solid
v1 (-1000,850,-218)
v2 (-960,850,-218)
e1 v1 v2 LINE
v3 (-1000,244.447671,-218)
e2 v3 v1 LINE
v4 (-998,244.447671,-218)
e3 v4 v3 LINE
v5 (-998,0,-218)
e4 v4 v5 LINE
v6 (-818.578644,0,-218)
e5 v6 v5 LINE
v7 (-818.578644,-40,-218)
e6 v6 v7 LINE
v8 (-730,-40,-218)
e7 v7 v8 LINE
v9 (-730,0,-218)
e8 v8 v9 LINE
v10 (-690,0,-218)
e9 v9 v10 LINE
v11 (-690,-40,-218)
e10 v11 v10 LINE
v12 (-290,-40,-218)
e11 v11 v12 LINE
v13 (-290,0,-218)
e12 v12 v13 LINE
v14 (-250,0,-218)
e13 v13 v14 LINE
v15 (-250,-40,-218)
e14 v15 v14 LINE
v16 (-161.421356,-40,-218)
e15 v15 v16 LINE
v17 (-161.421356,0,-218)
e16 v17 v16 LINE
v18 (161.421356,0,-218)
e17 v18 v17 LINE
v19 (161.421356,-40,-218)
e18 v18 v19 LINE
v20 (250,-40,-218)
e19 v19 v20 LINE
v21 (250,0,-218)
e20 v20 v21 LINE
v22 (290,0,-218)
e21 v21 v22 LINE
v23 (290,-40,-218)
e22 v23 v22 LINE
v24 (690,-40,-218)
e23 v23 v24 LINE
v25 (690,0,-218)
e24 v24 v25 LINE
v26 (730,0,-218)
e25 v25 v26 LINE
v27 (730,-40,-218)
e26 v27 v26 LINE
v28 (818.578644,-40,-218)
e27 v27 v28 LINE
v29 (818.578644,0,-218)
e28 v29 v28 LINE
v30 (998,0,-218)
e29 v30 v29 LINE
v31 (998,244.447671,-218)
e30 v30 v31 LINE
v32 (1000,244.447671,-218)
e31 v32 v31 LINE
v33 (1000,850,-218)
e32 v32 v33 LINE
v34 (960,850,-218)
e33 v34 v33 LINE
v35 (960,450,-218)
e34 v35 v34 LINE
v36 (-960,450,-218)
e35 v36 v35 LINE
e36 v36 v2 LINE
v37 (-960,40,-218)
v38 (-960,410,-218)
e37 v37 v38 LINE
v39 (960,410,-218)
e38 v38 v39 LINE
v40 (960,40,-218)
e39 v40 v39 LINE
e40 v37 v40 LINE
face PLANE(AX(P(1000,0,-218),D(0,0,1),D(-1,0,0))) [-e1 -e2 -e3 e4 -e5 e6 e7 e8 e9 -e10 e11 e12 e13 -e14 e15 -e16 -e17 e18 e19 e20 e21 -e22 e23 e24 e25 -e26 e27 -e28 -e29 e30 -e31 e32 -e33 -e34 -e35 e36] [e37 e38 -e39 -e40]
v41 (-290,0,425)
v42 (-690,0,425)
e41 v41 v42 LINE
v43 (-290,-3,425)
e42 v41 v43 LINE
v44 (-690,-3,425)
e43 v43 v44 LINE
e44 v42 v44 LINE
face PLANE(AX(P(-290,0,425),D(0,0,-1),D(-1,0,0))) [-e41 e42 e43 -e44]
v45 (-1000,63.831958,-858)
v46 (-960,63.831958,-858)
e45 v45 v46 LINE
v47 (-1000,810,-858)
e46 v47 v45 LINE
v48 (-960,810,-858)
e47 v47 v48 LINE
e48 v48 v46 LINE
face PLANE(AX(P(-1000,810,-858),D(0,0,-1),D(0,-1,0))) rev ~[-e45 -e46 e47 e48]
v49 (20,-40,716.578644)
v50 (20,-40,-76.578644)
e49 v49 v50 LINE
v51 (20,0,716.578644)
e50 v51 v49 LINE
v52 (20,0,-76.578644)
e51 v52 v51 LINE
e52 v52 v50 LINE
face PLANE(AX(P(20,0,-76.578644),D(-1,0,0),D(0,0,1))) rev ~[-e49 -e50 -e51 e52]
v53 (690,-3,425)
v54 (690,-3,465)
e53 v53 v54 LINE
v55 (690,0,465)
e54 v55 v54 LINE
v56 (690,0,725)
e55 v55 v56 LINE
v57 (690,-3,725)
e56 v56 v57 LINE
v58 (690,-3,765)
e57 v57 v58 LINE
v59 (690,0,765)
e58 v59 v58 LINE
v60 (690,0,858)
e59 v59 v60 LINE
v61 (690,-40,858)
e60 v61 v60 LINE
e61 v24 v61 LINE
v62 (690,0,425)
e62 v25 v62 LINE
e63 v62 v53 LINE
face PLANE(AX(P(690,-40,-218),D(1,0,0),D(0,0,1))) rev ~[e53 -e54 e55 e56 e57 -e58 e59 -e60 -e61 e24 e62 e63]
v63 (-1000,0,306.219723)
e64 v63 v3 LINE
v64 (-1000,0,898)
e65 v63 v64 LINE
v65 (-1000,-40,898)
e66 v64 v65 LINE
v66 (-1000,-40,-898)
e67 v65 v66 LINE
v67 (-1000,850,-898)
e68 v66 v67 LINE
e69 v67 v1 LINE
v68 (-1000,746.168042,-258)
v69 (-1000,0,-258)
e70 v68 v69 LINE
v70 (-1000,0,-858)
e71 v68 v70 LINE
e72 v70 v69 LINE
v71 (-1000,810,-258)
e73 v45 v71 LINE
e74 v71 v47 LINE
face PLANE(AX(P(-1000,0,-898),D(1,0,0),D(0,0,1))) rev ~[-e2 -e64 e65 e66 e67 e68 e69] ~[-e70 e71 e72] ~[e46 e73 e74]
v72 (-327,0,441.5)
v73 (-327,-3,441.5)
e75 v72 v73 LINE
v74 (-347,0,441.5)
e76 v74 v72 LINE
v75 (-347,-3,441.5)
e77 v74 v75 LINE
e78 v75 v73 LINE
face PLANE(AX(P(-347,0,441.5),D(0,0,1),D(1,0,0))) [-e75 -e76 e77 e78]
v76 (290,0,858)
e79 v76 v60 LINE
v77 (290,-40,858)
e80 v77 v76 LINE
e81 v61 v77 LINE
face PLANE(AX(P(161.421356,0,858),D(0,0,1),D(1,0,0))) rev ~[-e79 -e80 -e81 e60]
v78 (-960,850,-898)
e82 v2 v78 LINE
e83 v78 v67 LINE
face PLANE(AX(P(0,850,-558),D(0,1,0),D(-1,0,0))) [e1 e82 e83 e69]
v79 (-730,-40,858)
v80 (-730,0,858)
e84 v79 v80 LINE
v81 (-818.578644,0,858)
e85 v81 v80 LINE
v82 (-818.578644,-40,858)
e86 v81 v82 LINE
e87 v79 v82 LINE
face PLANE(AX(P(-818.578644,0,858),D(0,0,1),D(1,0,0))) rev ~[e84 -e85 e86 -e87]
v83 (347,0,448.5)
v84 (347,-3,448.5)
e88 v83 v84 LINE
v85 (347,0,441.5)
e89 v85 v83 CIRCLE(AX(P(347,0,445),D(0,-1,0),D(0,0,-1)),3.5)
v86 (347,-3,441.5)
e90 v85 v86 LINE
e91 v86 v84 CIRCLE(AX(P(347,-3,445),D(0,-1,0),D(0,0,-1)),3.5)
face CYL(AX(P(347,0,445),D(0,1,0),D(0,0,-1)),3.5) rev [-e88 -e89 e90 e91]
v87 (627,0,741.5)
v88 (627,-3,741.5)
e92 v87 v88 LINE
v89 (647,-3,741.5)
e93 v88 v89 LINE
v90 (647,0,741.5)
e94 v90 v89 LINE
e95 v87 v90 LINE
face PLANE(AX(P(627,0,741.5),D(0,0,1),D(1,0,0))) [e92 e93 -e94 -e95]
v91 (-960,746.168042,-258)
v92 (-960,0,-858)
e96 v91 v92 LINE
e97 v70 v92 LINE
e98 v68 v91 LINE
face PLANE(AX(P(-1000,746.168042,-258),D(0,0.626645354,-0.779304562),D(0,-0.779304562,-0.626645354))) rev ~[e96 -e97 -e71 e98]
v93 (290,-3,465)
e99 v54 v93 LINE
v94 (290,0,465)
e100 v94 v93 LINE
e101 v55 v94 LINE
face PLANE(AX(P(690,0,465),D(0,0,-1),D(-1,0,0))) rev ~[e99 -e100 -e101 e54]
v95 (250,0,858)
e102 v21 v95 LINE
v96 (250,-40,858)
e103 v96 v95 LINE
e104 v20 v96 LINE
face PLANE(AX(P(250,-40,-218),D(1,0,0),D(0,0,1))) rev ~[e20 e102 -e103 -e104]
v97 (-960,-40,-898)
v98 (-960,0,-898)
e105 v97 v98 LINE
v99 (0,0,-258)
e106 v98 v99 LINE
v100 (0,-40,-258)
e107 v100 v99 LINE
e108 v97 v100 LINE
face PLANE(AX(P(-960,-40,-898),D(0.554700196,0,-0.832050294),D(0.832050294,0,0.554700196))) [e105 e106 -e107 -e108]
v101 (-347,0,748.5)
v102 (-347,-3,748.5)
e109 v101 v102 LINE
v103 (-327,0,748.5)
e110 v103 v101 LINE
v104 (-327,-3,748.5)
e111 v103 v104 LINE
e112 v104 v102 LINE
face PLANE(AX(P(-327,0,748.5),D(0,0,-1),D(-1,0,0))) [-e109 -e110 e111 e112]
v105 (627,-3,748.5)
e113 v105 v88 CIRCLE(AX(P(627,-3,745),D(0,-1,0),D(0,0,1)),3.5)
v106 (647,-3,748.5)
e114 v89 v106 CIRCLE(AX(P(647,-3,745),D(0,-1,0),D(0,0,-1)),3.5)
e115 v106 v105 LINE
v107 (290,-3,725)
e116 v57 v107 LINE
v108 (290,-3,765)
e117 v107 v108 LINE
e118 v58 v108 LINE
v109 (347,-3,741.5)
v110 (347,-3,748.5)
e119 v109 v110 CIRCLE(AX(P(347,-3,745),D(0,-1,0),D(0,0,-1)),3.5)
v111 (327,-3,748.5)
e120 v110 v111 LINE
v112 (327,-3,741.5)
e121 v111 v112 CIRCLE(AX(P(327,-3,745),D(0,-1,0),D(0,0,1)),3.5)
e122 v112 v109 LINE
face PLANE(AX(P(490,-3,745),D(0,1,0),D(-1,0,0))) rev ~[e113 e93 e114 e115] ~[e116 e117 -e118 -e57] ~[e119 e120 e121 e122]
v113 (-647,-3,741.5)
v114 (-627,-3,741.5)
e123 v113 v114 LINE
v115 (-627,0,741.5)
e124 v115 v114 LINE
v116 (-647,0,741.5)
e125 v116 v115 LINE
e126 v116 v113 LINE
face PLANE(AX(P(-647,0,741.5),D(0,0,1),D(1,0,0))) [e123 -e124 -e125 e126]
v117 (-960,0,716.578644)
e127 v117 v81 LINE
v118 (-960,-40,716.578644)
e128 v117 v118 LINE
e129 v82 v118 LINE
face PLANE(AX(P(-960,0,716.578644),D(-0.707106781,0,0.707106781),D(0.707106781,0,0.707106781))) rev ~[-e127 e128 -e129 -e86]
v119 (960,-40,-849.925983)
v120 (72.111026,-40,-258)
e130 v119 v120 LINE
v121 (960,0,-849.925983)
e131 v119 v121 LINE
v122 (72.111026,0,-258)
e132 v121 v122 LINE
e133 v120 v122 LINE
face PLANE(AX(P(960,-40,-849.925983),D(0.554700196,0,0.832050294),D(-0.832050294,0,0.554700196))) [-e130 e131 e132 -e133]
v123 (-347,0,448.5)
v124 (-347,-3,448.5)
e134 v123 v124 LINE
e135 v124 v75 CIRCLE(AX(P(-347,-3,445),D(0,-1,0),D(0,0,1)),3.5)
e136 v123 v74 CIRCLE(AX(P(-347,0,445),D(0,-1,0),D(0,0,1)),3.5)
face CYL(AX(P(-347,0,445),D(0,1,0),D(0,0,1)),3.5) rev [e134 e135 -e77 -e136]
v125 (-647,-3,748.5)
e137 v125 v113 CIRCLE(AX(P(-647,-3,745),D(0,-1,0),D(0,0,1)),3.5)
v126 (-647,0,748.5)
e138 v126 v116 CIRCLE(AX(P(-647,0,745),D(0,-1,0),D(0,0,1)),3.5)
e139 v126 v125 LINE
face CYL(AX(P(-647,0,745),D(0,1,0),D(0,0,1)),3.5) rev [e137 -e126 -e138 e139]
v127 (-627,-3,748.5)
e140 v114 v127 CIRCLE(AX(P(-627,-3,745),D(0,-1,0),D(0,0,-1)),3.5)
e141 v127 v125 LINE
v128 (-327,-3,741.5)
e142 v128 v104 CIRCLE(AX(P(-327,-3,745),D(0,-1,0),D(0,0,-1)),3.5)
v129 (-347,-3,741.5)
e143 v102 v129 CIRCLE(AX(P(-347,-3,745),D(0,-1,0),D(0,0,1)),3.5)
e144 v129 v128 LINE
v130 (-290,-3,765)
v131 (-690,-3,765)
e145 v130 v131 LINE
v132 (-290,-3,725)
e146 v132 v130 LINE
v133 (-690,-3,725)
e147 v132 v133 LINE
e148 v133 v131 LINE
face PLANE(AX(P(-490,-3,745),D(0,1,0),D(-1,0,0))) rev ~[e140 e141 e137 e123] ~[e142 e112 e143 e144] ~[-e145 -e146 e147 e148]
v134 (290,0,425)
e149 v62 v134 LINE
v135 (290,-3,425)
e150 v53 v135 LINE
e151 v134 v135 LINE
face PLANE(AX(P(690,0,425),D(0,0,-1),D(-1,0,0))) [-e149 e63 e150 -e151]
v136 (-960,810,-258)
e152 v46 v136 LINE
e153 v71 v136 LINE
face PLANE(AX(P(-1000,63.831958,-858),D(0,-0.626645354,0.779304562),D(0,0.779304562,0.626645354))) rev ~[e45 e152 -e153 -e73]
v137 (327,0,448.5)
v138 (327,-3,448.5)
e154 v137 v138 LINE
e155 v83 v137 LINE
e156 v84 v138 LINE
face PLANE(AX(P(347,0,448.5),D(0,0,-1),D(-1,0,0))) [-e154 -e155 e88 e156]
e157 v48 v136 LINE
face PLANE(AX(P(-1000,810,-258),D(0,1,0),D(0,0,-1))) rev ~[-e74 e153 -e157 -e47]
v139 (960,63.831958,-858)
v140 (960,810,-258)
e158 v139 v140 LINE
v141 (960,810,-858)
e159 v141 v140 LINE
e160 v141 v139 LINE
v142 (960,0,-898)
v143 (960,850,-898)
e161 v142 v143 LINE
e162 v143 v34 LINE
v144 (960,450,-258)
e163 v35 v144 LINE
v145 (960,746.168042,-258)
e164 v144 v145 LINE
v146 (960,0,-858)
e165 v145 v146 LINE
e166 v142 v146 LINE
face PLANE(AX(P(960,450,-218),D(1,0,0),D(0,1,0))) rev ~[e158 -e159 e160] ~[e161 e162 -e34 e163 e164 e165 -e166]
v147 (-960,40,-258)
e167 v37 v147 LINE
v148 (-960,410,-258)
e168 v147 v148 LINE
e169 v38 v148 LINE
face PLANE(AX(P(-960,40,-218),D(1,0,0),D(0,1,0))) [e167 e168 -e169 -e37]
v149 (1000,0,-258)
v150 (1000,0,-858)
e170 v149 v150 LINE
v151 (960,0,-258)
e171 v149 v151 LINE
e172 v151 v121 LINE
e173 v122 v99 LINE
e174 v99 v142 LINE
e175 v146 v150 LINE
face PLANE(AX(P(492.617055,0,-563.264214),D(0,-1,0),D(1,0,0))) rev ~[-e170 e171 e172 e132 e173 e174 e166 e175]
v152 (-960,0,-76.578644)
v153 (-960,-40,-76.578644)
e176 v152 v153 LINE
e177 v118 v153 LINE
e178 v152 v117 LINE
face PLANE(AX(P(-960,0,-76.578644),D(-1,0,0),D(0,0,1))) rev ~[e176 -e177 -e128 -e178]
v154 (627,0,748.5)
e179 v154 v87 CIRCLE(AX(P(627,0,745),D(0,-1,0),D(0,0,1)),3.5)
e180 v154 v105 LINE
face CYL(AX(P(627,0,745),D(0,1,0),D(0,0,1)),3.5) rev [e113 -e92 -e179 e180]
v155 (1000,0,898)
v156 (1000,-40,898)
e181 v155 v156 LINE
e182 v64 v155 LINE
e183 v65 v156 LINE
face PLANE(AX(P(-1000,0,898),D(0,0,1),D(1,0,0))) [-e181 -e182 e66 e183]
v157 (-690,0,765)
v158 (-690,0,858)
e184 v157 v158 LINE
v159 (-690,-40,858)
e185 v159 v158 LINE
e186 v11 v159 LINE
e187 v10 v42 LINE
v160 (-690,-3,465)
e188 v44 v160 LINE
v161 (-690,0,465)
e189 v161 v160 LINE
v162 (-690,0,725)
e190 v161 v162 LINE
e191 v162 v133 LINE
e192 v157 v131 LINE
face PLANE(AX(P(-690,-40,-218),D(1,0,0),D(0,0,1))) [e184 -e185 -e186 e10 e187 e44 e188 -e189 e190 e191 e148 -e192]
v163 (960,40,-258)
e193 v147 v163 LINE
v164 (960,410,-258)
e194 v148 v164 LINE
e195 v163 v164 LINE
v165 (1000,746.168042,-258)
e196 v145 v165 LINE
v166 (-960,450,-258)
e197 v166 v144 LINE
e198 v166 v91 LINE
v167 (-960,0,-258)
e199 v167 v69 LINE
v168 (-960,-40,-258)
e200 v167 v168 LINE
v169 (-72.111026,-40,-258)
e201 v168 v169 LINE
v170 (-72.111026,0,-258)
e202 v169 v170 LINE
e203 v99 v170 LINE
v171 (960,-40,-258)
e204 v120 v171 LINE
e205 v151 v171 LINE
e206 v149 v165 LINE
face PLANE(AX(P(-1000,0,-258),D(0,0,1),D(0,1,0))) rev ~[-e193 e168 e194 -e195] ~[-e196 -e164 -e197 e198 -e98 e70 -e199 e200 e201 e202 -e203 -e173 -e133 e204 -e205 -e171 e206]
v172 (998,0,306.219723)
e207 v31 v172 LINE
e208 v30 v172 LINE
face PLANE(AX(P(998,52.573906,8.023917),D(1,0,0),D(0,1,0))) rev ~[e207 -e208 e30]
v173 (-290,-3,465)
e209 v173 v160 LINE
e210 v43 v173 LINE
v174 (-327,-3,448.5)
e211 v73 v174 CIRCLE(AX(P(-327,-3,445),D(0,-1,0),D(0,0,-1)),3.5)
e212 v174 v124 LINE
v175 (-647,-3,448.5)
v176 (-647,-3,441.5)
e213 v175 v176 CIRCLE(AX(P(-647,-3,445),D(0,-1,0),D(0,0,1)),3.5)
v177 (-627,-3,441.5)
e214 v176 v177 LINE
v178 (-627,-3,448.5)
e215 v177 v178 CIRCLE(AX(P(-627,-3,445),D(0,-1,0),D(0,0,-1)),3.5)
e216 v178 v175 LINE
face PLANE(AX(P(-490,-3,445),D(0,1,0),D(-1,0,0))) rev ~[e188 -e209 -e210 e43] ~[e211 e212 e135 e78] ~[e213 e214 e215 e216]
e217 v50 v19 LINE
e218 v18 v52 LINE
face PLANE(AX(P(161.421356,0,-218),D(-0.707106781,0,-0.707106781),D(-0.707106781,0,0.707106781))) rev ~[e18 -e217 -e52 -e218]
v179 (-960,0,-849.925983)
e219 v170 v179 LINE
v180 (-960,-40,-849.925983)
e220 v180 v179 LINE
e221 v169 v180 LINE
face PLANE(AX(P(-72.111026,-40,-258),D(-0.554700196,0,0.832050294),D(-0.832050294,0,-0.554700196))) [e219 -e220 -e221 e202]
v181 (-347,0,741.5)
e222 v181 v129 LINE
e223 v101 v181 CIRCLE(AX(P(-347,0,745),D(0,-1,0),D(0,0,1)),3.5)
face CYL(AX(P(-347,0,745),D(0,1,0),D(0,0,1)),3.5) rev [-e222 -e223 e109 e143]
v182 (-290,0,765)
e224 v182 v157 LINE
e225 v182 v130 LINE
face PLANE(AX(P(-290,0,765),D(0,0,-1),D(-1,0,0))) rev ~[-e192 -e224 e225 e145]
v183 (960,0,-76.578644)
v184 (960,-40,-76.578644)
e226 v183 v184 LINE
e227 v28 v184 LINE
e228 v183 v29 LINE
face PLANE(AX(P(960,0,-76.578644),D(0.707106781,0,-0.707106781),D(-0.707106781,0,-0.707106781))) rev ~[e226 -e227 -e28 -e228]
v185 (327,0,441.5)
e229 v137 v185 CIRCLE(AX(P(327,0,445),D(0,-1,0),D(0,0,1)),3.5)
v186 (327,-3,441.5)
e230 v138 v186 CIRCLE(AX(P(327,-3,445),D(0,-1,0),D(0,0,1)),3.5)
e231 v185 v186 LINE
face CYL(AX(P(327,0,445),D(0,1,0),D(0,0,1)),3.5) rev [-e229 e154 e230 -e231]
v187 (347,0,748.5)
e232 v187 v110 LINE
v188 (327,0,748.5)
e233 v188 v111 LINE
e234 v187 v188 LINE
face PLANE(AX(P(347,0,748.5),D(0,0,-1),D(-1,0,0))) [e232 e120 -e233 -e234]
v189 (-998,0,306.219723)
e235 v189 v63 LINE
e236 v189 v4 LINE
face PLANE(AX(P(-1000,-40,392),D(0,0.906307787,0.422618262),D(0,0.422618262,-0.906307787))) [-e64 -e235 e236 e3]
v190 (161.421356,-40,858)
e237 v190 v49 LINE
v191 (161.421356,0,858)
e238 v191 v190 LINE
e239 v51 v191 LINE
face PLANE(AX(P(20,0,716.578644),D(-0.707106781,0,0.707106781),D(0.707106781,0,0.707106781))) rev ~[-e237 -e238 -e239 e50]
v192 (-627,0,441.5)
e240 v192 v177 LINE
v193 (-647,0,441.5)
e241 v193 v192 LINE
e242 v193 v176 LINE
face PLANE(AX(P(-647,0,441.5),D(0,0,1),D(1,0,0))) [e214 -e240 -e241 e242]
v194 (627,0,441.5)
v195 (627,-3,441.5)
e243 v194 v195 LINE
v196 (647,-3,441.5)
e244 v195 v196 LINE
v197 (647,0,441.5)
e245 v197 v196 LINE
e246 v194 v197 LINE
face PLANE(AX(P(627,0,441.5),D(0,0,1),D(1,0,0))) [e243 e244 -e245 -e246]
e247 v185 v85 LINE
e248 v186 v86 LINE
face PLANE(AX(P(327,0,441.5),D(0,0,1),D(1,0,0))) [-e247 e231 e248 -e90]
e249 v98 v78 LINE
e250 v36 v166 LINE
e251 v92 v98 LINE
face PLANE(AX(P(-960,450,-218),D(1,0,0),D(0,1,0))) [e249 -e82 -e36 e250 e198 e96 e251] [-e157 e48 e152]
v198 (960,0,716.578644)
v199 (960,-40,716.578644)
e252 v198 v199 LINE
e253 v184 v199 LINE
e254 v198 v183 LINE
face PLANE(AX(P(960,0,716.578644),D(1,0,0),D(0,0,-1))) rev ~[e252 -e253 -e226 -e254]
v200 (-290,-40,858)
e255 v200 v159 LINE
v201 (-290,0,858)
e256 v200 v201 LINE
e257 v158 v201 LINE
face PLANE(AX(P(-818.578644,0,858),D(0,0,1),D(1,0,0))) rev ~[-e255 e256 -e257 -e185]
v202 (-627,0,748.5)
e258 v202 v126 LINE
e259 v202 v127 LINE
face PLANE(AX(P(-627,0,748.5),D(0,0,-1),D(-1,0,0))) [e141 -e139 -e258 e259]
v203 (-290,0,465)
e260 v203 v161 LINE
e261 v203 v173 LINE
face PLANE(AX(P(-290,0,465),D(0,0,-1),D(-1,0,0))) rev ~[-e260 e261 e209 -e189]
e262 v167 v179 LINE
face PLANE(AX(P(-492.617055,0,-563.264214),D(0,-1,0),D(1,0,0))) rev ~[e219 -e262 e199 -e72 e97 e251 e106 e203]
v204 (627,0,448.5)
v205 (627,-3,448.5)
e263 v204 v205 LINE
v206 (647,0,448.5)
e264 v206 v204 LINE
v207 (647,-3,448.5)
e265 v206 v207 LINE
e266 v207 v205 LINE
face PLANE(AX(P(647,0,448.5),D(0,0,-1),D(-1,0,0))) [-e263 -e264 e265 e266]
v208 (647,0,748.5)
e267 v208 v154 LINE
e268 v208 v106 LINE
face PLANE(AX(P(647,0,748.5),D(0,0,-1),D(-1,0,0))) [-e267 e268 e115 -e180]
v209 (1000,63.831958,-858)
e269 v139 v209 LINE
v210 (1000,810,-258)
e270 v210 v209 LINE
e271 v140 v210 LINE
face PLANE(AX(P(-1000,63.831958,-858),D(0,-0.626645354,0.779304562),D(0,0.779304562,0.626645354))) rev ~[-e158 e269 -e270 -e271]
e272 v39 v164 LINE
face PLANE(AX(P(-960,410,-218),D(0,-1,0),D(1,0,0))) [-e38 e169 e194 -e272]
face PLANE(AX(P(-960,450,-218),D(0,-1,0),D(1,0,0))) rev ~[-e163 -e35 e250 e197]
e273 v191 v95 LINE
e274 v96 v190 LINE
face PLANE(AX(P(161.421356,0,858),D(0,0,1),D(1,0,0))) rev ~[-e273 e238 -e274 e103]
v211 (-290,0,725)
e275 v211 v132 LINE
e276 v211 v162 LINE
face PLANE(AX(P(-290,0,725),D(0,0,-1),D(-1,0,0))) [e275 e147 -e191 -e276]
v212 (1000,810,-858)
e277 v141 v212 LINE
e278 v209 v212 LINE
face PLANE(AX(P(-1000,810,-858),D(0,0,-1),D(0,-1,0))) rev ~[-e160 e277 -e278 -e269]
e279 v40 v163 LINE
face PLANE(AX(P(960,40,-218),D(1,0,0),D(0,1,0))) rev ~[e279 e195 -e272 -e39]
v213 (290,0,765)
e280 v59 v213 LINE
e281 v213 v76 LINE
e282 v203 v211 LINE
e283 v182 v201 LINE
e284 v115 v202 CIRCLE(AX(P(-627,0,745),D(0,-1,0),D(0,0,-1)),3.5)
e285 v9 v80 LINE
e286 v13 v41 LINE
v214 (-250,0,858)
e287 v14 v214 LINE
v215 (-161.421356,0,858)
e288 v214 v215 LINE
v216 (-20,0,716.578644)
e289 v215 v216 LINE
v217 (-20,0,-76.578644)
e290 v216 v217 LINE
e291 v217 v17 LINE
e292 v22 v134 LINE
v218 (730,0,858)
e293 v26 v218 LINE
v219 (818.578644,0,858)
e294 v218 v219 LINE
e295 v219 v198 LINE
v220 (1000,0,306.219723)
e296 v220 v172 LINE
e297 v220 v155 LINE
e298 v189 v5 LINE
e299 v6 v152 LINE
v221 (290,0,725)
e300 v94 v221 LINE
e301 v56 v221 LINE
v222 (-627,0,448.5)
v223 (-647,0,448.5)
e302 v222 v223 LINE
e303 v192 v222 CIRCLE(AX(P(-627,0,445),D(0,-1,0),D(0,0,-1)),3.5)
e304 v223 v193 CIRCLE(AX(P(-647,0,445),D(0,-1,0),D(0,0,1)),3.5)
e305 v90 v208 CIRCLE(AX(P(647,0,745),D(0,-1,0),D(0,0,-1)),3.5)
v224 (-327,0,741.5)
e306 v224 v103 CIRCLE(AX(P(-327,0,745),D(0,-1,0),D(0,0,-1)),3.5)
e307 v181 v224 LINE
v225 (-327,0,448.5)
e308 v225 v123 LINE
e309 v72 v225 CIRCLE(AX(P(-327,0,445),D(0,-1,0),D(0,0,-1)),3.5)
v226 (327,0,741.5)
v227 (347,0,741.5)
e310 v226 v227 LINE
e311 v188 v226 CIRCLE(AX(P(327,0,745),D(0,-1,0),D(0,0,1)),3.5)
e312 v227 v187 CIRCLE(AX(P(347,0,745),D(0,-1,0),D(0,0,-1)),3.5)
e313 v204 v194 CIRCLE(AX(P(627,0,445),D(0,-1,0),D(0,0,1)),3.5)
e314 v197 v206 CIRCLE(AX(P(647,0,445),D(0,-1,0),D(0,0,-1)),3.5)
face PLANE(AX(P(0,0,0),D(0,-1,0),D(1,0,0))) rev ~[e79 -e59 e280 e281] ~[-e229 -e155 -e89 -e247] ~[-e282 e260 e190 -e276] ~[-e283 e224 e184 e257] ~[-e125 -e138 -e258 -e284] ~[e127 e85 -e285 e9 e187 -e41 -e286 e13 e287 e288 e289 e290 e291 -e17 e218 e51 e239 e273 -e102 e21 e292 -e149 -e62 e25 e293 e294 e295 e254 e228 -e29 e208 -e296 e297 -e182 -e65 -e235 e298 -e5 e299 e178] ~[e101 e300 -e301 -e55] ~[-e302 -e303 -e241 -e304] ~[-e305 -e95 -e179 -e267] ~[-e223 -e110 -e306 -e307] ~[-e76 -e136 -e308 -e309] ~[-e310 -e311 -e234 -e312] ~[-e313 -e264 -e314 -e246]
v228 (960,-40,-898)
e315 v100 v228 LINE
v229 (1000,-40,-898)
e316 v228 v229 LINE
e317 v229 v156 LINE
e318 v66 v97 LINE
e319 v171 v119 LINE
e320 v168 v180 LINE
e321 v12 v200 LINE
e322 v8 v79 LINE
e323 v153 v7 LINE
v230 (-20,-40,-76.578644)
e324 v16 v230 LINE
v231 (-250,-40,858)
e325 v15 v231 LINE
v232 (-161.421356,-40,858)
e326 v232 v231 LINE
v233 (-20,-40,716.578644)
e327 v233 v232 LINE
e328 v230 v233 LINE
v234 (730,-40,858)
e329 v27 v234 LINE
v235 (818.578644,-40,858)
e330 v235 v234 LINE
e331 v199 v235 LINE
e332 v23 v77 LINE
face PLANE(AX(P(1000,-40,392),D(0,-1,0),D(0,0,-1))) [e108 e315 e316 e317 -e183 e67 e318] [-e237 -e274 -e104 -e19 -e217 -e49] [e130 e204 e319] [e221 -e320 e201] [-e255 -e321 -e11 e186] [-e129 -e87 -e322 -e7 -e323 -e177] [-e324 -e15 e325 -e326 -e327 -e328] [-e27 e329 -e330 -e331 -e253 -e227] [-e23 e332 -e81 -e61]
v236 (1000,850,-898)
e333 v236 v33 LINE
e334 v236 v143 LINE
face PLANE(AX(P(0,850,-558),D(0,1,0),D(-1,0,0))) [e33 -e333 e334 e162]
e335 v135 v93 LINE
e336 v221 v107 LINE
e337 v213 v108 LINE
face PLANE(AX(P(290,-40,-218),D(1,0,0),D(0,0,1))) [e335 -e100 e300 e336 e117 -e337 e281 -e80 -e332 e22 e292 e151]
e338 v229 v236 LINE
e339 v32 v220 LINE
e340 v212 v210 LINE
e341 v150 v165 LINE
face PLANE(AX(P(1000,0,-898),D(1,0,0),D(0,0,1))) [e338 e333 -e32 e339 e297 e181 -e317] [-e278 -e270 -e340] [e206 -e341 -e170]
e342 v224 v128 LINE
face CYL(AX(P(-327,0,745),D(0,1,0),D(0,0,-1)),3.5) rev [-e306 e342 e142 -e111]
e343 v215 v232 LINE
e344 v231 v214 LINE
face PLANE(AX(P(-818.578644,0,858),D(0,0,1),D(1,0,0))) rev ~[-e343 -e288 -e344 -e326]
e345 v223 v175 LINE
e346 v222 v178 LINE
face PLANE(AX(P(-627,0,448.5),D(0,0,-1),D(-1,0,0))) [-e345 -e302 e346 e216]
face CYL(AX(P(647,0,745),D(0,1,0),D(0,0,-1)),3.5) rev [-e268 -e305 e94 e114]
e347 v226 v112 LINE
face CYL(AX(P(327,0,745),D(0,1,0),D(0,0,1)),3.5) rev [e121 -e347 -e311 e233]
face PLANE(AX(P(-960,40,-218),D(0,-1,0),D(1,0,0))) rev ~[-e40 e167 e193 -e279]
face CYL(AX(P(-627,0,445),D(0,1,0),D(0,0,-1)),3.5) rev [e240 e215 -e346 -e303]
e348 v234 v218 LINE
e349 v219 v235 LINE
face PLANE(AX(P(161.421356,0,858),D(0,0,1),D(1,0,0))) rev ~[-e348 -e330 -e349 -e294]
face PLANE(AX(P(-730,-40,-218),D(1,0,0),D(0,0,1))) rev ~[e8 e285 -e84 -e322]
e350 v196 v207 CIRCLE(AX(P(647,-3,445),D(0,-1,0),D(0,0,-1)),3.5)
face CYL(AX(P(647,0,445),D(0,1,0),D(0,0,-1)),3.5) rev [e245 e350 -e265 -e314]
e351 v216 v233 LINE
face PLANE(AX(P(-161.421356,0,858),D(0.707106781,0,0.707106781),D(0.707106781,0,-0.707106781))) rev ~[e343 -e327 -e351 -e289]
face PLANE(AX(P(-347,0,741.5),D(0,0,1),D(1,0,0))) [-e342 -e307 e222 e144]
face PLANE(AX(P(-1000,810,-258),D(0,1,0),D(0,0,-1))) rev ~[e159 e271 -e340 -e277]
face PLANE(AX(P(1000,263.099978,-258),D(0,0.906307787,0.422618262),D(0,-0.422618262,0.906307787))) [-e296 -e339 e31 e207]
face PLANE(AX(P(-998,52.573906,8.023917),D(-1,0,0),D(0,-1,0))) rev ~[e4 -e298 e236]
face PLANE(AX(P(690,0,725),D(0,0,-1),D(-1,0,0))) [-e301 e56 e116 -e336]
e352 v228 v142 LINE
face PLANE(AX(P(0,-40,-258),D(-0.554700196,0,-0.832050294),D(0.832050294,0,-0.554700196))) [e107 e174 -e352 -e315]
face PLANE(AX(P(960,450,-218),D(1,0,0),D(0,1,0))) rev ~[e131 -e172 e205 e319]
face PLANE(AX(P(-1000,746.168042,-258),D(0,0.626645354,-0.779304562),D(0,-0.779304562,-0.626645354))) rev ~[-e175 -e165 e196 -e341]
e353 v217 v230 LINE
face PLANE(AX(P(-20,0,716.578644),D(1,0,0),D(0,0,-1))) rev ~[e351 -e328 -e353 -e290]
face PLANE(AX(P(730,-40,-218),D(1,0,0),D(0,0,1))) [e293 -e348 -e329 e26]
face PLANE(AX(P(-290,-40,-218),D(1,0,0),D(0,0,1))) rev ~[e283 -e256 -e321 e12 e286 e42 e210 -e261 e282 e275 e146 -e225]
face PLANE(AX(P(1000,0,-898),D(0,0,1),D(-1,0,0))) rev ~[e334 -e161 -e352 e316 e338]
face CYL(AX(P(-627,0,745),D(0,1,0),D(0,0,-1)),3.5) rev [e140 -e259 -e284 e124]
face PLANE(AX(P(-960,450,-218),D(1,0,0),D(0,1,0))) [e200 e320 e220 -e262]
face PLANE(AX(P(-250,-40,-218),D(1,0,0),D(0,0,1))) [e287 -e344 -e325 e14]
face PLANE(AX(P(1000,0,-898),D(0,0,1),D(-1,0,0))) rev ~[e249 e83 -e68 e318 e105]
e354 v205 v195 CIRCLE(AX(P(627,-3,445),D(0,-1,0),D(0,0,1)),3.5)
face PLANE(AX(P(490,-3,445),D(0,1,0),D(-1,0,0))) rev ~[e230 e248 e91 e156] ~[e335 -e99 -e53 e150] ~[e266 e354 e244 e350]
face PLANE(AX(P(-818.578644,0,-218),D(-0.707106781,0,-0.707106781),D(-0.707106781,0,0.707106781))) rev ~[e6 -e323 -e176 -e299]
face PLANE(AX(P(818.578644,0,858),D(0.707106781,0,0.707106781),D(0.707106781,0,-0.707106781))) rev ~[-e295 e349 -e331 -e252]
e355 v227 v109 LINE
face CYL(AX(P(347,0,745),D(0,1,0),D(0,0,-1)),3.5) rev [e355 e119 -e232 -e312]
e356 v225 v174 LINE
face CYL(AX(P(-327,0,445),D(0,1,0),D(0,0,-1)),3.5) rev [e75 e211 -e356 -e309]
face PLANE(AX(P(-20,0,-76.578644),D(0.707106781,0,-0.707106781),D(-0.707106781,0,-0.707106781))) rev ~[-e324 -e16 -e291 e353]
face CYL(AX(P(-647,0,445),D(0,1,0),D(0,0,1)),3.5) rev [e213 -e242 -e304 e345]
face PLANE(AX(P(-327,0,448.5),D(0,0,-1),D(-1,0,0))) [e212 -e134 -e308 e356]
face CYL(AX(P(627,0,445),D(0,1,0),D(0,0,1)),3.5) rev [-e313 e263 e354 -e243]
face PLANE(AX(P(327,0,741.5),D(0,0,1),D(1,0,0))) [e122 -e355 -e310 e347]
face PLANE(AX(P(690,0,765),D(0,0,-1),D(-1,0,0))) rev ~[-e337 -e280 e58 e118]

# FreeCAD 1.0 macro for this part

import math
import FreeCAD as App
import Part
import Sketcher

V = App.Vector
Q = App.Units.Quantity


def add_polygon(sketch, points):
    """Adds a closed chain of lines whose ends are joined by coincident constraints."""
    first, n = sketch.GeometryCount, len(points)
    for a, b in zip(points, points[1:] + points[:1]):
        sketch.addGeometry(Part.LineSegment(App.Vector(*a, 0), App.Vector(*b, 0)), False)
    for i in range(n):
        sketch.addConstraint(Sketcher.Constraint("Coincident", first + i, 2, first + (i + 1) % n, 1))

doc = App.newDocument("Part")
body = doc.addObject("PartDesign::Body", "Body")

sketch1 = doc.addObject("Sketcher::SketchObject", "Sketch")
body.addObject(sketch1)
sketch1.AttachmentSupport = (doc.XZ_Plane, [""])
sketch1.MapMode = "FlatFace"
add_polygon(sketch1, [(-1000, 898), (-1000, -898), (1000, -898), (1000, 898)])
sketch1.addConstraint(Sketcher.Constraint("Vertical", 0))
sketch1.addConstraint(Sketcher.Constraint("Horizontal", 1))
sketch1.addConstraint(Sketcher.Constraint("Vertical", 2))
sketch1.addConstraint(Sketcher.Constraint("Horizontal", 3))
sketch1.addConstraint(Sketcher.Constraint("Symmetric", 0, 2, 2, 2, -1, 1))
sketch1.addConstraint(Sketcher.Constraint("DistanceX", 1, 1, 1, 2, 2000.0))
sketch1.addConstraint(Sketcher.Constraint("DistanceY", 0, 2, 0, 1, 1796.0))
pad1 = doc.addObject("PartDesign::Pad", "Pad")
body.addObject(pad1)
pad1.Profile = sketch1
pad1.Length = 40

sketch2 = doc.addObject("Sketcher::SketchObject", "Sketch001")
body.addObject(sketch2)
sketch2.AttachmentSupport = (doc.XZ_Plane, [""])
sketch2.MapMode = "FlatFace"
add_polygon(sketch2, [(1000, -218), (1000, -898), (-1000, -898), (-1000, -218)])
sketch2.addConstraint(Sketcher.Constraint("Vertical", 0))
sketch2.addConstraint(Sketcher.Constraint("Horizontal", 1))
sketch2.addConstraint(Sketcher.Constraint("Vertical", 2))
sketch2.addConstraint(Sketcher.Constraint("Horizontal", 3))
sketch2.addConstraint(Sketcher.Constraint("DistanceX", 1, 2, 1, 1, 2000.0))
sketch2.addConstraint(Sketcher.Constraint("DistanceY", 0, 2, 0, 1, 680.0))
sketch2.addConstraint(Sketcher.Constraint("DistanceX", -1, 1, 0, 2, 1000.0))
sketch2.addConstraint(Sketcher.Constraint("DistanceY", 0, 2, -1, 1, 898.0))
pad2 = doc.addObject("PartDesign::Pad", "Pad001")
body.addObject(pad2)
pad2.Profile = sketch2
pad2.Length = 850
pad2.Reversed = True

sketch3 = doc.addObject("Sketcher::SketchObject", "Sketch002")
body.addObject(sketch3)
sketch3.AttachmentSupport = (doc.XZ_Plane, [""])
sketch3.MapMode = "FlatFace"
add_polygon(sketch3, [(960, -258), (960, -898), (-960, -898), (-960, -258)])
add_polygon(sketch3, [(161, -218), (20, -77), (20, 717), (161, 858), (819, 858), (960, 717), (960, -77), (819, -218)])
add_polygon(sketch3, [(-20, 717), (-20, -77), (-161, -218), (-819, -218), (-960, -77), (-960, 717), (-819, 858), (-161, 858)])
sketch3.addConstraint(Sketcher.Constraint("Vertical", 0))
sketch3.addConstraint(Sketcher.Constraint("Horizontal", 1))
sketch3.addConstraint(Sketcher.Constraint("Vertical", 2))
sketch3.addConstraint(Sketcher.Constraint("Horizontal", 3))
sketch3.addConstraint(Sketcher.Constraint("Vertical", 5))
sketch3.addConstraint(Sketcher.Constraint("Horizontal", 7))
sketch3.addConstraint(Sketcher.Constraint("Vertical", 9))
sketch3.addConstraint(Sketcher.Constraint("Horizontal", 11))
sketch3.addConstraint(Sketcher.Constraint("Vertical", 12))
sketch3.addConstraint(Sketcher.Constraint("Horizontal", 14))
sketch3.addConstraint(Sketcher.Constraint("Vertical", 16))
sketch3.addConstraint(Sketcher.Constraint("Horizontal", 18))
sketch3.addConstraint(Sketcher.Constraint("Symmetric", 4, 2, 12, 2, -2))
sketch3.addConstraint(Sketcher.Constraint("Symmetric", 11, 2, 13, 2, -2))
sketch3.addConstraint(Sketcher.Constraint("Symmetric", 9, 2, 15, 2, -2))
sketch3.addConstraint(Sketcher.Constraint("Symmetric", 7, 2, 17, 2, -2))
sketch3.addConstraint(Sketcher.Constraint("Perpendicular", 4, 6))
sketch3.addConstraint(Sketcher.Constraint("Perpendicular", 6, 8))
sketch3.addConstraint(Sketcher.Constraint("Perpendicular", 8, 10))
sketch3.addConstraint(Sketcher.Constraint("Parallel", 10, 13))
sketch3.addConstraint(Sketcher.Constraint("Perpendicular", 13, 15))
sketch3.addConstraint(Sketcher.Constraint("Perpendicular", 15, 17))
sketch3.addConstraint(Sketcher.Constraint("Perpendicular", 17, 19))
sketch3.addConstraint(Sketcher.Constraint("Horizontal", 5, 2, 8, 2))
sketch3.addConstraint(Sketcher.Constraint("Horizontal", 4, 2, 9, 2))
sketch3.addConstraint(Sketcher.Constraint("Horizontal", 16, 2, 19, 2))
sketch3.addConstraint(Sketcher.Constraint("Vertical", 3, 2, 8, 2))
sketch3.addConstraint(Sketcher.Constraint("Vertical", 7, 2, 10, 2))
sketch3.addConstraint(Sketcher.Constraint("Vertical", 2, 2, 15, 2))
sketch3.addConstraint(Sketcher.Constraint("DistanceX", 1, 2, 1, 1, 1920.0))
sketch3.addConstraint(Sketcher.Constraint("DistanceY", 0, 2, 0, 1, 640.0))
sketch3.addConstraint(Sketcher.Constraint("Distance", 4, 200.0))
sketch3.addConstraint(Sketcher.Constraint("DistanceY", 0, 2, -1, 1, 898.0))
sketch3.addConstraint(Sketcher.Constraint("DistanceX", -1, 1, 4, 2, 20.0))
sketch3.addConstraint(Sketcher.Constraint("DistanceY", -1, 1, 6, 2, 858.0))
sketch3.addConstraint(Sketcher.Constraint("DistanceY", 10, 2, -1, 1, 218.0))
pocket1 = doc.addObject("PartDesign::Pocket", "Pocket")
body.addObject(pocket1)
pocket1.Profile = sketch3
pocket1.Type = "ThroughAll"
pocket1.Midplane = True

sketch4 = doc.addObject("Sketcher::SketchObject", "Sketch003")
body.addObject(sketch4)
sketch4.AttachmentSupport = (doc.YZ_Plane, [""])
sketch4.MapMode = "FlatFace"
sketch4.AttachmentOffset = App.Placement(V(0, 0, -1000), App.Rotation())
add_polygon(sketch4, [(64, -858), (810, -258), (810, -858)])
add_polygon(sketch4, [(0, -858), (0, -258), (746, -258)])
sketch4.addConstraint(Sketcher.Constraint("Vertical", 1))
sketch4.addConstraint(Sketcher.Constraint("Horizontal", 2))
sketch4.addConstraint(Sketcher.Constraint("Vertical", 3))
sketch4.addConstraint(Sketcher.Constraint("Horizontal", 4))
sketch4.addConstraint(Sketcher.Constraint("PointOnObject", 3, 2, -2))
sketch4.addConstraint(Sketcher.Constraint("Parallel", 0, 5))
sketch4.addConstraint(Sketcher.Constraint("Horizontal", 0, 2, 3, 2))
sketch4.addConstraint(Sketcher.Constraint("Horizontal", 2, 2, 5, 2))
sketch4.addConstraint(Sketcher.Constraint("DistanceY", 1, 2, 1, 1, 600.0))
sketch4.addConstraint(Sketcher.Constraint("DistanceX", -1, 1, 0, 2, 810.0))
sketch4.addConstraint(Sketcher.Constraint("DistanceY", 0, 2, -1, 1, 258.0))
sketch4.addConstraint(Sketcher.Constraint("DistanceX", 2, 2, 2, 1, 746.168042))
pocket2 = doc.addObject("PartDesign::Pocket", "Pocket001")
body.addObject(pocket2)
pocket2.Profile = sketch4
pocket2.Type = "ThroughAll"
pocket2.Reversed = True

sketch5 = doc.addObject("Sketcher::SketchObject", "Sketch004")
body.addObject(sketch5)
sketch5.AttachmentSupport = (doc.XY_Plane, [""])
sketch5.MapMode = "FlatFace"
sketch5.AttachmentOffset = App.Placement(V(0, 0, -218), App.Rotation())
add_polygon(sketch5, [(-960, 850), (-960, 450), (960, 450), (960, 850)])
add_polygon(sketch5, [(-960, 410), (-960, 40), (960, 40), (960, 410)])
sketch5.addConstraint(Sketcher.Constraint("Vertical", 0))
sketch5.addConstraint(Sketcher.Constraint("Horizontal", 1))
sketch5.addConstraint(Sketcher.Constraint("Vertical", 2))
sketch5.addConstraint(Sketcher.Constraint("Horizontal", 3))
sketch5.addConstraint(Sketcher.Constraint("Vertical", 4))
sketch5.addConstraint(Sketcher.Constraint("Horizontal", 5))
sketch5.addConstraint(Sketcher.Constraint("Vertical", 6))
sketch5.addConstraint(Sketcher.Constraint("Horizontal", 7))
sketch5.addConstraint(Sketcher.Constraint("Vertical", 3, 2, 4, 2))
sketch5.addConstraint(Sketcher.Constraint("Vertical", 2, 2, 5, 2))
sketch5.addConstraint(Sketcher.Constraint("DistanceX", 1, 1, 1, 2, 1920.0))
sketch5.addConstraint(Sketcher.Constraint("DistanceY", 0, 2, 0, 1, 400.0))
sketch5.addConstraint(Sketcher.Constraint("DistanceY", 4, 2, 4, 1, 370.0))
sketch5.addConstraint(Sketcher.Constraint("DistanceX", 0, 2, -1, 1, 960.0))
sketch5.addConstraint(Sketcher.Constraint("DistanceY", -1, 1, 0, 2, 450.0))
sketch5.addConstraint(Sketcher.Constraint("DistanceY", -1, 1, 4, 2, 40.0))
pocket3 = doc.addObject("PartDesign::Pocket", "Pocket002")
body.addObject(pocket3)
pocket3.Profile = sketch5
pocket3.Type = "ThroughAll"

sketch6 = doc.addObject("Sketcher::SketchObject", "Sketch005")
body.addObject(sketch6)
sketch6.AttachmentSupport = (doc.XZ_Plane, [""])
sketch6.MapMode = "FlatFace"
sketch6.AttachmentOffset = App.Placement(V(0, 0, 40), App.Rotation())
add_polygon(sketch6, [(72, -258), (0, -258), (960, -898), (960, -850)])
add_polygon(sketch6, [(-960, -898), (0, -258), (-72, -258), (-960, -850)])
sketch6.addConstraint(Sketcher.Constraint("Horizontal", 0))
sketch6.addConstraint(Sketcher.Constraint("Vertical", 2))
sketch6.addConstraint(Sketcher.Constraint("Horizontal", 5))
sketch6.addConstraint(Sketcher.Constraint("Vertical", 7))
sketch6.addConstraint(Sketcher.Constraint("Coincident", 4, 2, 0, 2))
sketch6.addConstraint(Sketcher.Constraint("Symmetric", 2, 2, 6, 2, -2))
sketch6.addConstraint(Sketcher.Constraint("PointOnObject", 0, 2, -2))
sketch6.addConstraint(Sketcher.Constraint("Parallel", 1, 3))
sketch6.addConstraint(Sketcher.Constraint("Parallel", 4, 6))
sketch6.addConstraint(Sketcher.Constraint("Horizontal", 1, 2, 7, 2))
sketch6.addConstraint(Sketcher.Constraint("DistanceY", 0, 2, -1, 1, 258.0))
sketch6.addConstraint(Sketcher.Constraint("DistanceX", -1, 1, 1, 2, 960.0))
sketch6.addConstraint(Sketcher.Constraint("DistanceY", 1, 2, -1, 1, 898.0))
sketch6.addConstraint(Sketcher.Constraint("Distance", 3, 1067.109741))
pad3 = doc.addObject("PartDesign::Pad", "Pad002")
body.addObject(pad3)
pad3.Profile = sketch6
pad3.Length = 40
pad3.Reversed = True

sketch7 = doc.addObject("Sketcher::SketchObject", "Sketch006")
body.addObject(sketch7)
sketch7.AttachmentSupport = (doc.XZ_Plane, [""])
sketch7.MapMode = "FlatFace"
sketch7.AttachmentOffset = App.Placement(V(0, 0, 40), App.Rotation())
add_polygon(sketch7, [(-730, 858), (-730, -218), (-690, -218), (-690, 858)])
add_polygon(sketch7, [(-290, 858), (-290, -218), (-250, -218), (-250, 858)])
add_polygon(sketch7, [(250, 858), (250, -218), (290, -218), (290, 858)])
add_polygon(sketch7, [(690, 858), (690, -218), (730, -218), (730, 858)])
sketch7.addConstraint(Sketcher.Constraint("Vertical", 0))
sketch7.addConstraint(Sketcher.Constraint("Horizontal", 1))
sketch7.addConstraint(Sketcher.Constraint("Vertical", 2))
sketch7.addConstraint(Sketcher.Constraint("Horizontal", 3))
sketch7.addConstraint(Sketcher.Constraint("Vertical", 4))
sketch7.addConstraint(Sketcher.Constraint("Horizontal", 5))
sketch7.addConstraint(Sketcher.Constraint("Vertical", 6))
sketch7.addConstraint(Sketcher.Constraint("Horizontal", 7))
sketch7.addConstraint(Sketcher.Constraint("Vertical", 8))
sketch7.addConstraint(Sketcher.Constraint("Horizontal", 9))
sketch7.addConstraint(Sketcher.Constraint("Vertical", 10))
sketch7.addConstraint(Sketcher.Constraint("Horizontal", 11))
sketch7.addConstraint(Sketcher.Constraint("Vertical", 12))
sketch7.addConstraint(Sketcher.Constraint("Horizontal", 13))
sketch7.addConstraint(Sketcher.Constraint("Vertical", 14))
sketch7.addConstraint(Sketcher.Constraint("Horizontal", 15))
sketch7.addConstraint(Sketcher.Constraint("Symmetric", 5, 2, 8, 2, -2))
sketch7.addConstraint(Sketcher.Constraint("Symmetric", 7, 2, 10, 2, -2))
sketch7.addConstraint(Sketcher.Constraint("Symmetric", 1, 2, 12, 2, -2))
sketch7.addConstraint(Sketcher.Constraint("Symmetric", 3, 2, 14, 2, -2))
sketch7.addConstraint(Sketcher.Constraint("Horizontal", 1, 2, 4, 2))
sketch7.addConstraint(Sketcher.Constraint("Horizontal", 3, 2, 6, 2))
sketch7.addConstraint(Sketcher.Constraint("Equal", 3, 5))
sketch7.addConstraint(Sketcher.Constraint("DistanceX", 1, 1, 1, 2, 40.0))
sketch7.addConstraint(Sketcher.Constraint("DistanceY", 0, 2, 0, 1, 1076.0))
sketch7.addConstraint(Sketcher.Constraint("DistanceX", 0, 2, -1, 1, 730.0))
sketch7.addConstraint(Sketcher.Constraint("DistanceY", 0, 2, -1, 1, 218.0))
sketch7.addConstraint(Sketcher.Constraint("DistanceX", 4, 2, -1, 1, 290.0))
pad4 = doc.addObject("PartDesign::Pad", "Pad003")
body.addObject(pad4)
pad4.Profile = sketch7
pad4.Length = 40
pad4.Reversed = True

sketch8 = doc.addObject("Sketcher::SketchObject", "Sketch007")
body.addObject(sketch8)
sketch8.AttachmentSupport = (doc.XZ_Plane, [""])
sketch8.MapMode = "FlatFace"
add_polygon(sketch8, [(-290, 765), (-290, 725), (-690, 725), (-690, 765)])
sketch8.addGeometry(Part.ArcOfCircle(Part.Circle(V(-327, 745, 0), V(0, 0, 1), 3.5), math.radians(-90), math.radians(90)), False)
sketch8.addGeometry(Part.LineSegment(V(-327, 748.5, 0), V(-347, 748.5, 0)), False)
sketch8.addGeometry(Part.ArcOfCircle(Part.Circle(V(-347, 745, 0), V(0, 0, 1), 3.5), math.radians(90), math.radians(270)), False)
sketch8.addGeometry(Part.LineSegment(V(-347, 741.5, 0), V(-327, 741.5, 0)), False)
sketch8.addGeometry(Part.ArcOfCircle(Part.Circle(V(-627, 745, 0), V(0, 0, 1), 3.5), math.radians(-90), math.radians(90)), False)
sketch8.addGeometry(Part.LineSegment(V(-627, 748.5, 0), V(-647, 748.5, 0)), False)
sketch8.addGeometry(Part.ArcOfCircle(Part.Circle(V(-647, 745, 0), V(0, 0, 1), 3.5), math.radians(90), math.radians(270)), False)
sketch8.addGeometry(Part.LineSegment(V(-647, 741.5, 0), V(-627, 741.5, 0)), False)
add_polygon(sketch8, [(-290, 465), (-290, 425), (-690, 425), (-690, 465)])
sketch8.addGeometry(Part.ArcOfCircle(Part.Circle(V(-327, 445, 0), V(0, 0, 1), 3.5), math.radians(-90), math.radians(90)), False)
sketch8.addGeometry(Part.LineSegment(V(-327, 448.5, 0), V(-347, 448.5, 0)), False)
sketch8.addGeometry(Part.ArcOfCircle(Part.Circle(V(-347, 445, 0), V(0, 0, 1), 3.5), math.radians(90), math.radians(270)), False)
sketch8.addGeometry(Part.LineSegment(V(-347, 441.5, 0), V(-327, 441.5, 0)), False)
sketch8.addGeometry(Part.ArcOfCircle(Part.Circle(V(-627, 445, 0), V(0, 0, 1), 3.5), math.radians(-90), math.radians(90)), False)
sketch8.addGeometry(Part.LineSegment(V(-627, 448.5, 0), V(-647, 448.5, 0)), False)
sketch8.addGeometry(Part.ArcOfCircle(Part.Circle(V(-647, 445, 0), V(0, 0, 1), 3.5), math.radians(90), math.radians(270)), False)
sketch8.addGeometry(Part.LineSegment(V(-647, 441.5, 0), V(-627, 441.5, 0)), False)
add_polygon(sketch8, [(690, 765), (690, 725), (290, 725), (290, 765)])
sketch8.addGeometry(Part.ArcOfCircle(Part.Circle(V(647, 745, 0), V(0, 0, 1), 3.5), math.radians(-90), math.radians(90)), False)
sketch8.addGeometry(Part.LineSegment(V(647, 748.5, 0), V(627, 748.5, 0)), False)
sketch8.addGeometry(Part.ArcOfCircle(Part.Circle(V(627, 745, 0), V(0, 0, 1), 3.5), math.radians(90), math.radians(270)), False)
sketch8.addGeometry(Part.LineSegment(V(627, 741.5, 0), V(647, 741.5, 0)), False)
sketch8.addGeometry(Part.ArcOfCircle(Part.Circle(V(347, 745, 0), V(0, 0, 1), 3.5), math.radians(-90), math.radians(90)), False)
sketch8.addGeometry(Part.LineSegment(V(347, 748.5, 0), V(327, 748.5, 0)), False)
sketch8.addGeometry(Part.ArcOfCircle(Part.Circle(V(327, 745, 0), V(0, 0, 1), 3.5), math.radians(90), math.radians(270)), False)
sketch8.addGeometry(Part.LineSegment(V(327, 741.5, 0), V(347, 741.5, 0)), False)
add_polygon(sketch8, [(690, 465), (690, 425), (290, 425), (290, 465)])
sketch8.addGeometry(Part.ArcOfCircle(Part.Circle(V(647, 445, 0), V(0, 0, 1), 3.5), math.radians(-90), math.radians(90)), False)
sketch8.addGeometry(Part.LineSegment(V(647, 448.5, 0), V(627, 448.5, 0)), False)
sketch8.addGeometry(Part.ArcOfCircle(Part.Circle(V(627, 445, 0), V(0, 0, 1), 3.5), math.radians(90), math.radians(270)), False)
sketch8.addGeometry(Part.LineSegment(V(627, 441.5, 0), V(647, 441.5, 0)), False)
sketch8.addGeometry(Part.ArcOfCircle(Part.Circle(V(347, 445, 0), V(0, 0, 1), 3.5), math.radians(-90), math.radians(90)), False)
sketch8.addGeometry(Part.LineSegment(V(347, 448.5, 0), V(327, 448.5, 0)), False)
sketch8.addGeometry(Part.ArcOfCircle(Part.Circle(V(327, 445, 0), V(0, 0, 1), 3.5), math.radians(90), math.radians(270)), False)
sketch8.addGeometry(Part.LineSegment(V(327, 441.5, 0), V(347, 441.5, 0)), False)
sketch8.addConstraint(Sketcher.Constraint("Tangent", 4, 2, 5, 1))
sketch8.addConstraint(Sketcher.Constraint("Tangent", 5, 2, 6, 1))
sketch8.addConstraint(Sketcher.Constraint("Tangent", 6, 2, 7, 1))
sketch8.addConstraint(Sketcher.Constraint("Tangent", 7, 2, 4, 1))
sketch8.addConstraint(Sketcher.Constraint("Tangent", 8, 2, 9, 1))
sketch8.addConstraint(Sketcher.Constraint("Tangent", 9, 2, 10, 1))
sketch8.addConstraint(Sketcher.Constraint("Tangent", 10, 2, 11, 1))
sketch8.addConstraint(Sketcher.Constraint("Tangent", 11, 2, 8, 1))
sketch8.addConstraint(Sketcher.Constraint("Tangent", 16, 2, 17, 1))
sketch8.addConstraint(Sketcher.Constraint("Tangent", 17, 2, 18, 1))
sketch8.addConstraint(Sketcher.Constraint("Tangent", 18, 2, 19, 1))
sketch8.addConstraint(Sketcher.Constraint("Tangent", 19, 2, 16, 1))
sketch8.addConstraint(Sketcher.Constraint("Tangent", 20, 2, 21, 1))
sketch8.addConstraint(Sketcher.Constraint("Tangent", 21, 2, 22, 1))
sketch8.addConstraint(Sketcher.Constraint("Tangent", 22, 2, 23, 1))
sketch8.addConstraint(Sketcher.Constraint("Tangent", 23, 2, 20, 1))
sketch8.addConstraint(Sketcher.Constraint("Tangent", 28, 2, 29, 1))
sketch8.addConstraint(Sketcher.Constraint("Tangent", 29, 2, 30, 1))
sketch8.addConstraint(Sketcher.Constraint("Tangent", 30, 2, 31, 1))
sketch8.addConstraint(Sketcher.Constraint("Tangent", 31, 2, 28, 1))
sketch8.addConstraint(Sketcher.Constraint("Tangent", 32, 2, 33, 1))
sketch8.addConstraint(Sketcher.Constraint("Tangent", 33, 2, 34, 1))
sketch8.addConstraint(Sketcher.Constraint("Tangent", 34, 2, 35, 1))
sketch8.addConstraint(Sketcher.Constraint("Tangent", 35, 2, 32, 1))
sketch8.addConstraint(Sketcher.Constraint("Tangent", 40, 2, 41, 1))
sketch8.addConstraint(Sketcher.Constraint("Tangent", 41, 2, 42, 1))
sketch8.addConstraint(Sketcher.Constraint("Tangent", 42, 2, 43, 1))
sketch8.addConstraint(Sketcher.Constraint("Tangent", 43, 2, 40, 1))
sketch8.addConstraint(Sketcher.Constraint("Tangent", 44, 2, 45, 1))
sketch8.addConstraint(Sketcher.Constraint("Tangent", 45, 2, 46, 1))
sketch8.addConstraint(Sketcher.Constraint("Tangent", 46, 2, 47, 1))
sketch8.addConstraint(Sketcher.Constraint("Tangent", 47, 2, 44, 1))
sketch8.addConstraint(Sketcher.Constraint("Vertical", 0))
sketch8.addConstraint(Sketcher.Constraint("Horizontal", 1))
sketch8.addConstraint(Sketcher.Constraint("Vertical", 2))
sketch8.addConstraint(Sketcher.Constraint("Horizontal", 3))
sketch8.addConstraint(Sketcher.Constraint("Horizontal", 5))
sketch8.addConstraint(Sketcher.Constraint("Horizontal", 7))
sketch8.addConstraint(Sketcher.Constraint("Horizontal", 9))
sketch8.addConstraint(Sketcher.Constraint("Horizontal", 11))
sketch8.addConstraint(Sketcher.Constraint("Vertical", 12))
sketch8.addConstraint(Sketcher.Constraint("Horizontal", 13))
sketch8.addConstraint(Sketcher.Constraint("Vertical", 14))
sketch8.addConstraint(Sketcher.Constraint("Horizontal", 15))
sketch8.addConstraint(Sketcher.Constraint("Horizontal", 17))
sketch8.addConstraint(Sketcher.Constraint("Horizontal", 19))
sketch8.addConstraint(Sketcher.Constraint("Horizontal", 21))
sketch8.addConstraint(Sketcher.Constraint("Horizontal", 23))
sketch8.addConstraint(Sketcher.Constraint("Vertical", 24))
sketch8.addConstraint(Sketcher.Constraint("Horizontal", 25))
sketch8.addConstraint(Sketcher.Constraint("Vertical", 26))
sketch8.addConstraint(Sketcher.Constraint("Horizontal", 27))
sketch8.addConstraint(Sketcher.Constraint("Horizontal", 29))
sketch8.addConstraint(Sketcher.Constraint("Horizontal", 31))
sketch8.addConstraint(Sketcher.Constraint("Horizontal", 33))
sketch8.addConstraint(Sketcher.Constraint("Horizontal", 35))
sketch8.addConstraint(Sketcher.Constraint("Vertical", 36))
sketch8.addConstraint(Sketcher.Constraint("Horizontal", 37))
sketch8.addConstraint(Sketcher.Constraint("Vertical", 38))
sketch8.addConstraint(Sketcher.Constraint("Horizontal", 39))
sketch8.addConstraint(Sketcher.Constraint("Horizontal", 41))
sketch8.addConstraint(Sketcher.Constraint("Horizontal", 43))
sketch8.addConstraint(Sketcher.Constraint("Horizontal", 45))
sketch8.addConstraint(Sketcher.Constraint("Horizontal", 47))
sketch8.addConstraint(Sketcher.Constraint("Equal", 6, 8))
sketch8.addConstraint(Sketcher.Constraint("Equal", 10, 16))
sketch8.addConstraint(Sketcher.Constraint("Equal", 18, 20))
sketch8.addConstraint(Sketcher.Constraint("Equal", 22, 28))
sketch8.addConstraint(Sketcher.Constraint("Equal", 30, 32))
sketch8.addConstraint(Sketcher.Constraint("Equal", 34, 40))
sketch8.addConstraint(Sketcher.Constraint("Equal", 42, 44))
sketch8.addConstraint(Sketcher.Constraint("Symmetric", 10, 3, 28, 3, -2))
sketch8.addConstraint(Sketcher.Constraint("Symmetric", 6, 3, 32, 3, -2))
sketch8.addConstraint(Sketcher.Constraint("Symmetric", 22, 3, 40, 3, -2))
sketch8.addConstraint(Sketcher.Constraint("Symmetric", 18, 3, 44, 3, -2))
sketch8.addConstraint(Sketcher.Constraint("Symmetric", 1, 2, 24, 2, -2))
sketch8.addConstraint(Sketcher.Constraint("Symmetric", 3, 2, 26, 2, -2))
sketch8.addConstraint(Sketcher.Constraint("Symmetric", 13, 2, 36, 2, -2))
sketch8.addConstraint(Sketcher.Constraint("Symmetric", 15, 2, 38, 2, -2))
sketch8.addConstraint(Sketcher.Constraint("Horizontal", 6, 3, 8, 3))
sketch8.addConstraint(Sketcher.Constraint("Horizontal", 18, 3, 20, 3))
sketch8.addConstraint(Sketcher.Constraint("Vertical", 4, 3, 16, 3))
sketch8.addConstraint(Sketcher.Constraint("Vertical", 6, 3, 18, 3))
sketch8.addConstraint(Sketcher.Constraint("Vertical", 8, 3, 20, 3))
sketch8.addConstraint(Sketcher.Constraint("Vertical", 10, 3, 22, 3))
sketch8.addConstraint(Sketcher.Constraint("Vertical", 30, 3, 42, 3))
sketch8.addConstraint(Sketcher.Constraint("Vertical", 34, 3, 46, 3))
sketch8.addConstraint(Sketcher.Constraint("Vertical", 3, 2, 12, 2))
sketch8.addConstraint(Sketcher.Constraint("Vertical", 2, 2, 13, 2))
sketch8.addConstraint(Sketcher.Constraint("Equal", 7, 9))
sketch8.addConstraint(Sketcher.Constraint("Equal", 23, 29))
sketch8.addConstraint(Sketcher.Constraint("Equal", 31, 33))
sketch8.addConstraint(Sketcher.Constraint("Equal", 2, 12))
sketch8.addConstraint(Sketcher.Constraint("Radius", 4, 3.5))
sketch8.addConstraint(Sketcher.Constraint("DistanceX", 1, 2, 1, 1, 400.0))
sketch8.addConstraint(Sketcher.Constraint("DistanceX", 5, 2, 5, 1, 20.0))
sketch8.addConstraint(Sketcher.Constraint("DistanceY", 0, 2, 0, 1, 40.0))
sketch8.addConstraint(Sketcher.Constraint("DistanceX", 4, 3, -1, 1, 327.0))
sketch8.addConstraint(Sketcher.Constraint("DistanceY", -1, 1, 4, 3, 745.0))
sketch8.addConstraint(Sketcher.Constraint("DistanceX", 8, 3, -1, 1, 627.0))
sketch8.addConstraint(Sketcher.Constraint("DistanceY", -1, 1, 16, 3, 445.0))
sketch8.addConstraint(Sketcher.Constraint("DistanceX", 0, 2, -1, 1, 290.0))
sketch8.addConstraint(Sketcher.Constraint("DistanceY", -1, 1, 0, 2, 725.0))
sketch8.addConstraint(Sketcher.Constraint("DistanceY", -1, 1, 12, 2, 425.0))
pad5 = doc.addObject("PartDesign::Pad", "Pad004")
body.addObject(pad5)
pad5.Profile = sketch8
pad5.Length = 3

sketch9 = doc.addObject("Sketcher::SketchObject", "Sketch008")
body.addObject(sketch9)
sketch9.AttachmentSupport = (doc.YZ_Plane, [""])
sketch9.MapMode = "FlatFace"
sketch9.AttachmentOffset = App.Placement(V(0, 0, -1000), App.Rotation())
add_polygon(sketch9, [(-40, 392), (263, -258), (-40, -258)])
sketch9.addConstraint(Sketcher.Constraint("Horizontal", 1))
sketch9.addConstraint(Sketcher.Constraint("Vertical", 2))
sketch9.addConstraint(Sketcher.Constraint("DistanceY", 2, 1, 2, 2, 650.0))
sketch9.addConstraint(Sketcher.Constraint("Angle", 0, Q("-65 deg")))
sketch9.addConstraint(Sketcher.Constraint("DistanceY", 0, 2, -1, 1, 258.0))
sketch9.addConstraint(Sketcher.Constraint("DistanceX", 1, 2, -1, 1, 40.0))
pad6 = doc.addObject("PartDesign::Pad", "Pad005")
body.addObject(pad6)
pad6.Profile = sketch9
pad6.Length = 2

sketch10 = doc.addObject("Sketcher::SketchObject", "Sketch009")
body.addObject(sketch10)
sketch10.AttachmentSupport = (doc.YZ_Plane, [""])
sketch10.MapMode = "FlatFace"
sketch10.AttachmentOffset = App.Placement(V(0, 0, 1000), App.Rotation())
add_polygon(sketch10, [(-40, -258), (263, -258), (-40, 392)])
sketch10.addConstraint(Sketcher.Constraint("Horizontal", 0))
sketch10.addConstraint(Sketcher.Constraint("Vertical", 2))
sketch10.addConstraint(Sketcher.Constraint("DistanceY", 2, 2, 2, 1, 650.0))
sketch10.addConstraint(Sketcher.Constraint("Angle", 1, Q("115 deg")))
sketch10.addConstraint(Sketcher.Constraint("DistanceY", 0, 2, -1, 1, 258.0))
sketch10.addConstraint(Sketcher.Constraint("DistanceX", 1, 2, -1, 1, 40.0))
pad7 = doc.addObject("PartDesign::Pad", "Pad006")
body.addObject(pad7)
pad7.Profile = sketch10
pad7.Length = 2
pad7.Reversed = True

doc.recompute()
